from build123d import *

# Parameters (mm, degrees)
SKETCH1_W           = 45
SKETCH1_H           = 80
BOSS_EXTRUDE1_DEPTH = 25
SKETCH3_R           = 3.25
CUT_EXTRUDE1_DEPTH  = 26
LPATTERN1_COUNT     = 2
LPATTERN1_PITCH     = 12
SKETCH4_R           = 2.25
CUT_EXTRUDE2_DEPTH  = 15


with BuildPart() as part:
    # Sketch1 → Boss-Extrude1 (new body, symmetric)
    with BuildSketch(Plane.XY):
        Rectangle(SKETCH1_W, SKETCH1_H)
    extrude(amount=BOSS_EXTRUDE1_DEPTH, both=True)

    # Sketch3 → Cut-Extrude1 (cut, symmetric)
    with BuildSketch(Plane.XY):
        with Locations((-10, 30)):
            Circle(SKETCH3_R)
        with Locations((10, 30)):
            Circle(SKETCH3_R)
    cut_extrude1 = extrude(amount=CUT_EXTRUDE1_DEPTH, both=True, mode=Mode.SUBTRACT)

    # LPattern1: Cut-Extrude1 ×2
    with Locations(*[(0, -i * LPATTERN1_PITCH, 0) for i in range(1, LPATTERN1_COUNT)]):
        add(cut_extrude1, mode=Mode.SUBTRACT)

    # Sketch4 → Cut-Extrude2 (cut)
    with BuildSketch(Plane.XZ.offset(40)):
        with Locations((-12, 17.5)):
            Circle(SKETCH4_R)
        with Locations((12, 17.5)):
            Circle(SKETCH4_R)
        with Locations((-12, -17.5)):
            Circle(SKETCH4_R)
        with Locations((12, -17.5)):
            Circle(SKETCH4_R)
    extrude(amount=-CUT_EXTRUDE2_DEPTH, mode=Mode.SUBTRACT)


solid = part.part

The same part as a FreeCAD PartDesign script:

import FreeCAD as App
import Part
import Sketcher


def add_polygon(sketch, points):
    """Adds a closed chain of lines whose ends are joined by coincident constraints."""
    first, n = sketch.GeometryCount, len(points)
    for a, b in zip(points, points[1:] + points[:1]):
        sketch.addGeometry(Part.LineSegment(App.Vector(*a, 0), App.Vector(*b, 0)), False)
    for i in range(n):
        sketch.addConstraint(Sketcher.Constraint("Coincident", first + i, 2, first + (i + 1) % n, 1))

doc = App.newDocument("Part")
body = doc.addObject("PartDesign::Body", "Body")

# Sketch on XY plane
sketch1 = doc.addObject("Sketcher::SketchObject", "Sketch")
body.addObject(sketch1)
sketch1.AttachmentSupport = (doc.XY_Plane, [""])
sketch1.MapMode = "FlatFace"
add_polygon(sketch1, [(-22, 40), (-22, -40), (22, -40), (22, 40)])  # lines 0-3
sketch1.addConstraint([
    Sketcher.Constraint("Vertical", 0),
    Sketcher.Constraint("Horizontal", 1),
    Sketcher.Constraint("Vertical", 2),
    Sketcher.Constraint("Horizontal", 3),
    Sketcher.Constraint("Symmetric", 0, 2, 2, 2, -1, 1),
    Sketcher.Constraint("DistanceX", 1, 1, 1, 2, 45.0),
    Sketcher.Constraint("DistanceY", 0, 2, 0, 1, 80.0),
])
pad1 = doc.addObject("PartDesign::Pad", "Pad")
body.addObject(pad1)
pad1.Profile = sketch1
pad1.Length = 50
pad1.Midplane = True

# Sketch on XY plane
sketch2 = doc.addObject("Sketcher::SketchObject", "Sketch001")
body.addObject(sketch2)
sketch2.AttachmentSupport = (doc.XY_Plane, [""])
sketch2.MapMode = "FlatFace"
sketch2.addGeometry([
    Part.Circle(App.Vector(-10, 30, 0), App.Vector(0, 0, 1), 3.2),
    Part.Circle(App.Vector(10, 30, 0), App.Vector(0, 0, 1), 3.2),
], False)
sketch2.addConstraint([
    Sketcher.Constraint("Equal", 0, 1),
    Sketcher.Constraint("Symmetric", 0, 3, 1, 3, -2),
    Sketcher.Constraint("Diameter", 0, 6.5),
    Sketcher.Constraint("DistanceX", 0, 3, -1, 1, 10.0),
    Sketcher.Constraint("DistanceY", -1, 1, 0, 3, 30.0),
])
pocket1 = doc.addObject("PartDesign::Pocket", "Pocket")
body.addObject(pocket1)
pocket1.Profile = sketch2
pocket1.Length = 52
pocket1.Midplane = True
doc.recompute()

linearpattern = doc.addObject("PartDesign::LinearPattern", "LinearPattern")
body.addObject(linearpattern)
linearpattern.Originals = [pocket1]
linearpattern.Direction = (doc.Y_Axis, [""])
linearpattern.Mode = "offset"
linearpattern.Offset = 12
linearpattern.Occurrences = 2
linearpattern.Reversed = True
body.Tip = linearpattern

# Sketch on XZ plane
sketch3 = doc.addObject("Sketcher::SketchObject", "Sketch002")
body.addObject(sketch3)
sketch3.AttachmentSupport = (doc.XZ_Plane, [""])
sketch3.MapMode = "FlatFace"
sketch3.AttachmentOffset = App.Placement(App.Vector(0, 0, 40), App.Rotation())
sketch3.addGeometry([
    Part.Circle(App.Vector(-12, 17.5, 0), App.Vector(0, 0, 1), 2.2),
    Part.Circle(App.Vector(12, 17.5, 0), App.Vector(0, 0, 1), 2.2),
    Part.Circle(App.Vector(-12, -17.5, 0), App.Vector(0, 0, 1), 2.2),
    Part.Circle(App.Vector(12, -17.5, 0), App.Vector(0, 0, 1), 2.2),
], False)
sketch3.addConstraint([
    Sketcher.Constraint("Equal", 0, 1),
    Sketcher.Constraint("Equal", 1, 2),
    Sketcher.Constraint("Equal", 2, 3),
    Sketcher.Constraint("Symmetric", 1, 3, 2, 3, -1, 1),
    Sketcher.Constraint("Symmetric", 0, 3, 3, 3, -1, 1),
    Sketcher.Constraint("Symmetric", 0, 3, 1, 3, -2),
    Sketcher.Constraint("Diameter", 0, 4.5),
    Sketcher.Constraint("DistanceX", 0, 3, -1, 1, 12.0),
    Sketcher.Constraint("DistanceY", 2, 3, 0, 3, 35.0),
])
pocket2 = doc.addObject("PartDesign::Pocket", "Pocket001")
body.addObject(pocket2)
pocket2.Profile = sketch3
pocket2.Length = 15

doc.recompute()
